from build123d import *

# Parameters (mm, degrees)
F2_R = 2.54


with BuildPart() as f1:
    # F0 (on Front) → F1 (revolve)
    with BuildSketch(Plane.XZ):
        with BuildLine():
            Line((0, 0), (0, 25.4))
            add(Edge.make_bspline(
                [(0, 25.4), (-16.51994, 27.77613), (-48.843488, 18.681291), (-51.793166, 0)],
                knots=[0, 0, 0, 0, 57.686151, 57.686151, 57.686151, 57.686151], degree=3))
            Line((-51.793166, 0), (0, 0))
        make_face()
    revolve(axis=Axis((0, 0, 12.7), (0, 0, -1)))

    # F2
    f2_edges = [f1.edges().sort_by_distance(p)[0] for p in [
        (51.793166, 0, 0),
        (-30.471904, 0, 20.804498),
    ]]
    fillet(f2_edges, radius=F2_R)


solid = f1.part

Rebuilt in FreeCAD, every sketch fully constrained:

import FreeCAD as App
import Part
import Sketcher
from FreeCAD import Vector
Q = App.Units.Quantity


def edges_at(feature, points):
    """Names of the edges that pass closest to the given points."""
    edges = feature.Shape.Edges
    near = lambda p: min(range(len(edges)), key=lambda i: edges[i].distToShape(Part.Vertex(*p))[0])
    return sorted({f"Edge{near(p) + 1}" for p in points})

doc = App.newDocument("Part")
body = doc.addObject("PartDesign::Body", "Body")

# Sketch on XZ plane
sketch1 = body.newObject("Sketcher::SketchObject", "Sketch")
sketch1.AttachmentSupport = (doc.getObject("XZ_Plane"), [""])
sketch1.MapMode = "FlatFace"
sketch1.addGeometry([
    Part.LineSegment(Vector(0, 0, 0), Vector(0, 25.4, 0)),
    Part.BSplineCurve([Vector(0, 25.4, 0), Vector(-16.51994, 27.77613, 0), Vector(-48.843488, 18.681291, 0), Vector(-51.793166, 0, 0)], [4, 4], [0, 57.686151], False, 3, [1, 1, 1, 1], False),
    Part.LineSegment(Vector(-51.793166, 0, 0), Vector(0, 0, 0)),
], False)
sketch1.addConstraint([
    Sketcher.Constraint("Block", 1),
    Sketcher.Constraint("Coincident", 0, 2, 1, 1),
    Sketcher.Constraint("Coincident", 1, 2, 2, 1),
    Sketcher.Constraint("Coincident", 2, 2, 0, 1),
    Sketcher.Constraint("Vertical", 0),
    Sketcher.Constraint("Horizontal", 2),
])
revolution = body.newObject("PartDesign::Revolution", "Revolution")
revolution.Profile = sketch1
revolution.ReferenceAxis = (sketch1, ["V_Axis"])
revolution.Angle = 360
doc.recompute()

fillet = body.newObject("PartDesign::Fillet", "Fillet")
fillet.Base = (revolution, edges_at(revolution, [(51.793, 0, 0), (-30.472, 0, 20.804)]))
fillet.Radius = Q("0.1 in")

doc.recompute()
